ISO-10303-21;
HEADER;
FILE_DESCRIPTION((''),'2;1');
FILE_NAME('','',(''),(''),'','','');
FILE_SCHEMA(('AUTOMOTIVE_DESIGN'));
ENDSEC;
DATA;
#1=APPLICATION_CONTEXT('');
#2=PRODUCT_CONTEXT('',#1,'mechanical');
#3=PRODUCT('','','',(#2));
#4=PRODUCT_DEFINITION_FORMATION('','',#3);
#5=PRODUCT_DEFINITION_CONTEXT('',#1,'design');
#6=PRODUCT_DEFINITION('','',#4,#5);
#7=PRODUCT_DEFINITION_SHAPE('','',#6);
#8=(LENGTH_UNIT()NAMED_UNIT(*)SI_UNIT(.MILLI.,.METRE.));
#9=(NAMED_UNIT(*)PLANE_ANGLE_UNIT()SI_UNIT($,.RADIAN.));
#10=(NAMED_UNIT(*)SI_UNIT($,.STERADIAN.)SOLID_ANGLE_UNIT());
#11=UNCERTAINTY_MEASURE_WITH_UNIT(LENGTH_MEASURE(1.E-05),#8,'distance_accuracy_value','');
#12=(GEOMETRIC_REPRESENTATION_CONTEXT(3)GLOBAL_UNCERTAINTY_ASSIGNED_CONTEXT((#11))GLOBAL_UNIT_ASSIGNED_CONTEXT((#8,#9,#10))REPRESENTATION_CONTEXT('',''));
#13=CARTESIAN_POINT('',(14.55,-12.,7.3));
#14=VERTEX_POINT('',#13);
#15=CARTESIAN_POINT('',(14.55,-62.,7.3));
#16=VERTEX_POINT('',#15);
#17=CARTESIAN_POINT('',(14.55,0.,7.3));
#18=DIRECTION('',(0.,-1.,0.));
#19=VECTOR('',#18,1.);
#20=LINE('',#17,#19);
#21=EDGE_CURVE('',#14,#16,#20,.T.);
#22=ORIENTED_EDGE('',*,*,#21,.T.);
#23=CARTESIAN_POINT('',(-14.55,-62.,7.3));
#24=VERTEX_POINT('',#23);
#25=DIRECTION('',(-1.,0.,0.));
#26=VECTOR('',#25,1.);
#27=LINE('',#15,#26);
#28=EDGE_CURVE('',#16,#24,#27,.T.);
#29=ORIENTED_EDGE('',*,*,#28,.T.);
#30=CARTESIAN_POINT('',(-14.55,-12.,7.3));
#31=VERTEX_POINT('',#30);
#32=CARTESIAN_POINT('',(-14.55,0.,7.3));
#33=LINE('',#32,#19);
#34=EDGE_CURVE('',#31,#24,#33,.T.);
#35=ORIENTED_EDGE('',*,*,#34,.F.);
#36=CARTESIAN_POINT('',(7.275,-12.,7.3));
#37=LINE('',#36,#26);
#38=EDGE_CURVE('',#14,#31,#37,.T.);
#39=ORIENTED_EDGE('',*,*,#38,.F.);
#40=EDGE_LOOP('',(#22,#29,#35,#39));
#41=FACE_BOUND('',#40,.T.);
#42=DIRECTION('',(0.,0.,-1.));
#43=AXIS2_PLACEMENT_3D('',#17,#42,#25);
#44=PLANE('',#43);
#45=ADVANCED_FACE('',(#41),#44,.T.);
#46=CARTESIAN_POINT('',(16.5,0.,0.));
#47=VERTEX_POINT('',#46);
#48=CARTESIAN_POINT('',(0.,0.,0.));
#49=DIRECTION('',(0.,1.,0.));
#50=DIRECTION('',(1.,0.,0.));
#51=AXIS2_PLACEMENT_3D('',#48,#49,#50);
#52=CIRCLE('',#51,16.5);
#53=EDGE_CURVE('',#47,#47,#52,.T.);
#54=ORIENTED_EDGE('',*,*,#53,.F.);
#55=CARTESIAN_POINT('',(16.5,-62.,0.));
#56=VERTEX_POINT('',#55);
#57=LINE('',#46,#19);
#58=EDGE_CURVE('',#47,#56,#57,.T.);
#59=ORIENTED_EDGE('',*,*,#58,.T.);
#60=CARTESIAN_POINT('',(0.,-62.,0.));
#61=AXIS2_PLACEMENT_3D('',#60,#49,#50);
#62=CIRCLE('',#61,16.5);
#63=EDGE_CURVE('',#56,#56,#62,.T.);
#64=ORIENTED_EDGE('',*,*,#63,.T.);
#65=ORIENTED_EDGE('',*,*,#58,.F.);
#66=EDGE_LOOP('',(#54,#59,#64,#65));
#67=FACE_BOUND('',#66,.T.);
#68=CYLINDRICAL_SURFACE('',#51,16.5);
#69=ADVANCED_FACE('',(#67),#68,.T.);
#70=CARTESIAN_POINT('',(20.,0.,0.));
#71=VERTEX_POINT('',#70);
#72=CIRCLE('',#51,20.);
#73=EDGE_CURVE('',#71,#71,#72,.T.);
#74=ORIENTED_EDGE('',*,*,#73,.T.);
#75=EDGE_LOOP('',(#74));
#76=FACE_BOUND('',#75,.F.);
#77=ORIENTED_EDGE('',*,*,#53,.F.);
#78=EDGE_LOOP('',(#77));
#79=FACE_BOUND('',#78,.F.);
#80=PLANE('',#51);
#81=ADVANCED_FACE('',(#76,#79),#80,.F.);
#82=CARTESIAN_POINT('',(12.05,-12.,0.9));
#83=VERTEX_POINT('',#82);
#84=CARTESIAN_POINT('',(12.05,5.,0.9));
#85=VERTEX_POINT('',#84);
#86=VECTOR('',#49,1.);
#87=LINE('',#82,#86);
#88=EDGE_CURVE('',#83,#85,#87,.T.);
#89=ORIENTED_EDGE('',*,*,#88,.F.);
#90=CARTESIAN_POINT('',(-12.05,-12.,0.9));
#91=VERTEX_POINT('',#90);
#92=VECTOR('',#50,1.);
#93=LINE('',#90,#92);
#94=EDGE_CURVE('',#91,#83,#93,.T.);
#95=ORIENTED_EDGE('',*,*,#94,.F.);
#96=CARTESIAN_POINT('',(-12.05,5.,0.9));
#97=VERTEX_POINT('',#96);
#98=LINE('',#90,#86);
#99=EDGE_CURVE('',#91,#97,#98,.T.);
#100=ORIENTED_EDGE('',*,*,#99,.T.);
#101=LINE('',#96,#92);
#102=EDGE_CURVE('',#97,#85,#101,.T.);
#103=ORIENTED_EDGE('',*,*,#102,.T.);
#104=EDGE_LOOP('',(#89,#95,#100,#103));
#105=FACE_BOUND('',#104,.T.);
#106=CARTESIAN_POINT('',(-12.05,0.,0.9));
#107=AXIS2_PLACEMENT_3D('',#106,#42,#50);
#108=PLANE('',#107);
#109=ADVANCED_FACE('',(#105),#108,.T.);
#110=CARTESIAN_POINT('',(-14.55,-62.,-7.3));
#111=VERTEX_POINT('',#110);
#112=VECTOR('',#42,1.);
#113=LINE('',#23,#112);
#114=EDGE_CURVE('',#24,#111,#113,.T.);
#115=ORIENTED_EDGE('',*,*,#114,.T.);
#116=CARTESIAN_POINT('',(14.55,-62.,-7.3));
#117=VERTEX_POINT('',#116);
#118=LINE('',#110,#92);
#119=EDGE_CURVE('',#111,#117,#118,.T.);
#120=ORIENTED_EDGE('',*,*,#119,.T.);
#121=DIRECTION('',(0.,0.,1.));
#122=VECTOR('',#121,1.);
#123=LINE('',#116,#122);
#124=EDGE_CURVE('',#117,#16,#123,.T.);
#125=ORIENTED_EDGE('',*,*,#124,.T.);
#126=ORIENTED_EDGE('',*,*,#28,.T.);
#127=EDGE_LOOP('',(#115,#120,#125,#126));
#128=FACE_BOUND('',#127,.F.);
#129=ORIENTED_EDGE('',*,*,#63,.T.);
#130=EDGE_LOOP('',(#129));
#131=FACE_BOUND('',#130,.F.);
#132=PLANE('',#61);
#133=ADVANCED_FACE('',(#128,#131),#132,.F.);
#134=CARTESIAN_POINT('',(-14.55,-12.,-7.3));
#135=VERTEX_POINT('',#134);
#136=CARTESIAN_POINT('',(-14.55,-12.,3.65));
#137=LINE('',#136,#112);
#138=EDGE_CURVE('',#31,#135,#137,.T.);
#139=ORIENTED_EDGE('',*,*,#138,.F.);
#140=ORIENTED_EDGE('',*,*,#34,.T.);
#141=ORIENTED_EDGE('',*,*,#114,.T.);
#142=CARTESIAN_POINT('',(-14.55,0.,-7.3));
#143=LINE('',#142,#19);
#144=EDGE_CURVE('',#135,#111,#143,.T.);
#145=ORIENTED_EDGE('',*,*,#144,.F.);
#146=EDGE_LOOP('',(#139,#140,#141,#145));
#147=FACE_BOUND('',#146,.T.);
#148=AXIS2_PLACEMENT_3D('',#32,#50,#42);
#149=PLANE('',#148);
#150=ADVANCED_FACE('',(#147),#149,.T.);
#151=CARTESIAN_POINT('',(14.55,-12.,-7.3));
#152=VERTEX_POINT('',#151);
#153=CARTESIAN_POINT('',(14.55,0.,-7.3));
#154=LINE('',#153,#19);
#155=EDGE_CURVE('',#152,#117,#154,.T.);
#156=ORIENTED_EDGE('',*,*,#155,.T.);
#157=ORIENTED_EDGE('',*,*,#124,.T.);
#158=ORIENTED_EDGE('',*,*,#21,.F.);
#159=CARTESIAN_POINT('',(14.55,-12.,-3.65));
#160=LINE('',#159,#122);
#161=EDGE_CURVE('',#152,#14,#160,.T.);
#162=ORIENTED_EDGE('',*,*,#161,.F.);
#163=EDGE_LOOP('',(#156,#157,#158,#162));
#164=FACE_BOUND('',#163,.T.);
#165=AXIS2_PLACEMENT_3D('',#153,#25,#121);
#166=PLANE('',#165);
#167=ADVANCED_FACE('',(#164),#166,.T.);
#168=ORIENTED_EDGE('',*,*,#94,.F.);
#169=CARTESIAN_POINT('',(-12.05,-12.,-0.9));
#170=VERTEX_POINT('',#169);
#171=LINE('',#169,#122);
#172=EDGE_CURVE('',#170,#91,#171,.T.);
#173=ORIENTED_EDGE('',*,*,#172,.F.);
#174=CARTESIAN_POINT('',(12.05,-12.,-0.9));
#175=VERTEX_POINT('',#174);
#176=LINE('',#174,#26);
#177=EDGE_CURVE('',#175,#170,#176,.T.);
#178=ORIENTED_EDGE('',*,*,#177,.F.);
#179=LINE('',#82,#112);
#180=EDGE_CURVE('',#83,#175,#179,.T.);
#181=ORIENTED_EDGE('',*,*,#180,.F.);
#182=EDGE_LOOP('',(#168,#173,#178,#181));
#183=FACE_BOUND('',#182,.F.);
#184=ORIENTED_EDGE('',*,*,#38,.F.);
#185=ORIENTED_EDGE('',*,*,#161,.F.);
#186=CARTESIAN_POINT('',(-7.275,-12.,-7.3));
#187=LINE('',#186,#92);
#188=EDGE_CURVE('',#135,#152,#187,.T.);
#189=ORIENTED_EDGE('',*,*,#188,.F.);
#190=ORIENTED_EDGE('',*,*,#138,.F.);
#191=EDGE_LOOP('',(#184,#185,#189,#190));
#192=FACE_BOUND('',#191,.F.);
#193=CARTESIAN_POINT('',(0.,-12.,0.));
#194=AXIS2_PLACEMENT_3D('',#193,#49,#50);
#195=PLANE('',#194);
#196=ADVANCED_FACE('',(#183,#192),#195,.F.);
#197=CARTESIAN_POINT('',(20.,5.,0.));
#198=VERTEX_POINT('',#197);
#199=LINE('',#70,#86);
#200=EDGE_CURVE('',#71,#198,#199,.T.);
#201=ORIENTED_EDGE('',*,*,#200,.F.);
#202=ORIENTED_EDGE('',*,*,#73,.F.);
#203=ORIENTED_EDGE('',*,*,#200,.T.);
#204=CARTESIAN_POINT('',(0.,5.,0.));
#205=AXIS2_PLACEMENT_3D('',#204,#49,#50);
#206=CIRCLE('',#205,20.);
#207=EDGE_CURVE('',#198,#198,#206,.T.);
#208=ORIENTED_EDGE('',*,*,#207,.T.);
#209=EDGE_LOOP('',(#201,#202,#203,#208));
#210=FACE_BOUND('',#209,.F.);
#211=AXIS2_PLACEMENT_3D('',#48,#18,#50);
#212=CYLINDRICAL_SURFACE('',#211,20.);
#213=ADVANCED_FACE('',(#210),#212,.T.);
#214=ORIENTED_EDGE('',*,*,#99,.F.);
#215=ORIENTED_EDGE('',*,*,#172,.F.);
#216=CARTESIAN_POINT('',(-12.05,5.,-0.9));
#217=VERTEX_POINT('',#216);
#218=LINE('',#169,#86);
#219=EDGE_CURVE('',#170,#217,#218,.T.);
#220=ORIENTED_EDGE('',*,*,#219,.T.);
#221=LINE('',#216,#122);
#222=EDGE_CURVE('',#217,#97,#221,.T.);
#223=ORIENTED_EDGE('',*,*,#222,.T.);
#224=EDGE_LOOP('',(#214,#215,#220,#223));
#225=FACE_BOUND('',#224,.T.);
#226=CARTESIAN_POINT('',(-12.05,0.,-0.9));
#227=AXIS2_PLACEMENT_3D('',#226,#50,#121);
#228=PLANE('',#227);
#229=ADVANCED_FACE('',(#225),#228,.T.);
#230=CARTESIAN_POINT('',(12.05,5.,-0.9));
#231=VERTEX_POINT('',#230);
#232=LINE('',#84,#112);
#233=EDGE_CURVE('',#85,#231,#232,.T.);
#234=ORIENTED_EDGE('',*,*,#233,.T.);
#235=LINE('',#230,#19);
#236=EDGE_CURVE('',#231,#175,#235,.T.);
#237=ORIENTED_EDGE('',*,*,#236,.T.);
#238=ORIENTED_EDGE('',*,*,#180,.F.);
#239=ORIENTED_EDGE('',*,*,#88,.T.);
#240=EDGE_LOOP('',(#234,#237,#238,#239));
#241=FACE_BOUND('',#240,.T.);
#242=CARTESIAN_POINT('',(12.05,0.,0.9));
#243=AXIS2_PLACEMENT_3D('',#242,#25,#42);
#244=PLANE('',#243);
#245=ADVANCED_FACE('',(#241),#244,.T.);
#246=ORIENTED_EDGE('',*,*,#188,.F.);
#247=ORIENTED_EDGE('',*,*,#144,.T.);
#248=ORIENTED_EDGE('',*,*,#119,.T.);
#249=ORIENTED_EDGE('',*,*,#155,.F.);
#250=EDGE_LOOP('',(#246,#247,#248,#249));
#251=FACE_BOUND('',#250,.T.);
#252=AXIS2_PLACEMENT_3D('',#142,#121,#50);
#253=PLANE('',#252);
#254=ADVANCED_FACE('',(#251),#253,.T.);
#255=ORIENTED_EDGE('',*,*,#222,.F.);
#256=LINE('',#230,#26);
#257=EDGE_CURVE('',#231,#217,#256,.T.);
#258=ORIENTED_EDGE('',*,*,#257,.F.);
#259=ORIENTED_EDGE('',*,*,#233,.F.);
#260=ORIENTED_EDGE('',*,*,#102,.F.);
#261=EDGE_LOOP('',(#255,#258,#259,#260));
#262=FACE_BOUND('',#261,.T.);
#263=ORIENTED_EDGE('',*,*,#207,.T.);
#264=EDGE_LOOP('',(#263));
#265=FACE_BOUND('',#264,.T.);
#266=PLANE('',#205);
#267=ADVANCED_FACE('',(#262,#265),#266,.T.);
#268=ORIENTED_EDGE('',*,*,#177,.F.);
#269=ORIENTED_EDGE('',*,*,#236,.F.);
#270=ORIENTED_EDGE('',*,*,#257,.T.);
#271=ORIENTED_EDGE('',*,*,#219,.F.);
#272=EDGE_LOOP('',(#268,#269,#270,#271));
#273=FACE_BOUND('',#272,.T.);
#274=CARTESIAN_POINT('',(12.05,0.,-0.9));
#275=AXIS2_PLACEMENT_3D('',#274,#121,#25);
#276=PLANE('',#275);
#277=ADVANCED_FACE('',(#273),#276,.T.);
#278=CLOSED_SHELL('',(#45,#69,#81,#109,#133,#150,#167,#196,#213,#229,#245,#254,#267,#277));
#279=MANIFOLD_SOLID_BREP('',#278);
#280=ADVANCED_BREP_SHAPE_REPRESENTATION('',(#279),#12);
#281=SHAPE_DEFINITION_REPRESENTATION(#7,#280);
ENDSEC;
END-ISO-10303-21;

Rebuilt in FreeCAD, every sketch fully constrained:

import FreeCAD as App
import Part
import Sketcher
Q = App.Units.Quantity

doc = App.newDocument("Part")
params = doc.addObject("Spreadsheet::Sheet", "Params")
for row, (alias, value) in enumerate([
    ("sketch1_diameter", "40 mm"),
    ("sketch1_width", "24.1 mm"),
    ("sketch1_height", "1.8 mm"),
    ("pad1_length", "5 mm"),
    ("sketch2_diameter", "33 mm"),
    ("sketch2_width", "24.1 mm"),
    ("sketch2_height", "1.8 mm"),
    ("pad2_length", "12 mm"),
    ("sketch3_diameter", "33 mm"),
    ("sketch3_width", "29.1 mm"),
    ("sketch3_height", "14.6 mm"),
    ("pad3_length", "62 mm"),
], start=1):
    params.set(f"A{row}", alias)
    params.set(f"B{row}", "=" + value)
    params.setAlias(f"B{row}", alias)

body = doc.addObject("PartDesign::Body", "Body")

# Sketch on XZ plane
sketch1 = doc.addObject("Sketcher::SketchObject", "Sketch")
body.addObject(sketch1)
sketch1.AttachmentSupport = (doc.XZ_Plane, [""])
sketch1.MapMode = "FlatFace"
sketch1.addGeometry([
    Part.Circle(App.Vector(0, 0, 0), App.Vector(0, 0, 1), 20),  # 0
    Part.LineSegment(App.Vector(12.1, -0.9, 0), App.Vector(12.1, 0.9, 0)),  # 1
    Part.LineSegment(App.Vector(12.1, 0.9, 0), App.Vector(-12.1, 0.9, 0)),  # 2
    Part.LineSegment(App.Vector(-12.1, 0.9, 0), App.Vector(-12.1, -0.9, 0)),  # 3
    Part.LineSegment(App.Vector(-12.1, -0.9, 0), App.Vector(12.1, -0.9, 0)),  # 4
], False)
sketch1.addConstraint([
    Sketcher.Constraint("Coincident", 1, 2, 2, 1),
    Sketcher.Constraint("Coincident", 2, 2, 3, 1),
    Sketcher.Constraint("Coincident", 3, 2, 4, 1),
    Sketcher.Constraint("Coincident", 4, 2, 1, 1),
    Sketcher.Constraint("Vertical", 1),
    Sketcher.Constraint("Horizontal", 2),
    Sketcher.Constraint("Vertical", 3),
    Sketcher.Constraint("Horizontal", 4),
    Sketcher.Constraint("Coincident", 0, 3, -1, 1),
    Sketcher.Constraint("Symmetric", 1, 2, 3, 2, -1, 1),
    Sketcher.Constraint("Diameter", 0, Q("40 mm")),
    Sketcher.Constraint("DistanceX", 2, 2, 2, 1, Q("24.1 mm")),
    Sketcher.Constraint("DistanceY", 1, 1, 1, 2, Q("1.8 mm")),
])
sketch1.setExpression("Constraints[10]", "Params.sketch1_diameter")
sketch1.setExpression("Constraints[11]", "Params.sketch1_width")
sketch1.setExpression("Constraints[12]", "Params.sketch1_height")
pad1 = doc.addObject("PartDesign::Pad", "Pad")
body.addObject(pad1)
pad1.Profile = sketch1
pad1.setExpression("Length", "Params.pad1_length")
pad1.Reversed = True

# Sketch on XZ plane
sketch2 = doc.addObject("Sketcher::SketchObject", "Sketch001")
body.addObject(sketch2)
sketch2.AttachmentSupport = (doc.XZ_Plane, [""])
sketch2.MapMode = "FlatFace"
sketch2.addGeometry([
    Part.Circle(App.Vector(0, 0, 0), App.Vector(0, 0, 1), 16.5),  # 0
    Part.LineSegment(App.Vector(-12.1, -0.9, 0), App.Vector(12.1, -0.9, 0)),  # 1
    Part.LineSegment(App.Vector(12.1, -0.9, 0), App.Vector(12.1, 0.9, 0)),  # 2
    Part.LineSegment(App.Vector(12.1, 0.9, 0), App.Vector(-12.1, 0.9, 0)),  # 3
    Part.LineSegment(App.Vector(-12.1, 0.9, 0), App.Vector(-12.1, -0.9, 0)),  # 4
], False)
sketch2.addConstraint([
    Sketcher.Constraint("Coincident", 1, 2, 2, 1),
    Sketcher.Constraint("Coincident", 2, 2, 3, 1),
    Sketcher.Constraint("Coincident", 3, 2, 4, 1),
    Sketcher.Constraint("Coincident", 4, 2, 1, 1),
    Sketcher.Constraint("Horizontal", 1),
    Sketcher.Constraint("Vertical", 2),
    Sketcher.Constraint("Horizontal", 3),
    Sketcher.Constraint("Vertical", 4),
    Sketcher.Constraint("Coincident", 0, 3, -1, 1),
    Sketcher.Constraint("Symmetric", 1, 2, 3, 2, -1, 1),
    Sketcher.Constraint("Diameter", 0, Q("33 mm")),
    Sketcher.Constraint("DistanceX", 1, 1, 1, 2, Q("24.1 mm")),
    Sketcher.Constraint("DistanceY", 2, 1, 2, 2, Q("1.8 mm")),
])
sketch2.setExpression("Constraints[10]", "Params.sketch2_diameter")
sketch2.setExpression("Constraints[11]", "Params.sketch2_width")
sketch2.setExpression("Constraints[12]", "Params.sketch2_height")
pad2 = doc.addObject("PartDesign::Pad", "Pad001")
body.addObject(pad2)
pad2.Profile = sketch2
pad2.setExpression("Length", "Params.pad2_length")

# Sketch on XZ plane
sketch3 = doc.addObject("Sketcher::SketchObject", "Sketch002")
body.addObject(sketch3)
sketch3.AttachmentSupport = (doc.XZ_Plane, [""])
sketch3.MapMode = "FlatFace"
sketch3.addGeometry([
    Part.Circle(App.Vector(0, 0, 0), App.Vector(0, 0, 1), 16),  # 0
    Part.LineSegment(App.Vector(15, -7, 0), App.Vector(15, 7, 0)),  # 1
    Part.LineSegment(App.Vector(15, 7, 0), App.Vector(-15, 7, 0)),  # 2
    Part.LineSegment(App.Vector(-15, 7, 0), App.Vector(-15, -7, 0)),  # 3
    Part.LineSegment(App.Vector(-15, -7, 0), App.Vector(15, -7, 0)),  # 4
], False)
sketch3.addConstraint([
    Sketcher.Constraint("Coincident", 1, 2, 2, 1),
    Sketcher.Constraint("Coincident", 2, 2, 3, 1),
    Sketcher.Constraint("Coincident", 3, 2, 4, 1),
    Sketcher.Constraint("Coincident", 4, 2, 1, 1),
    Sketcher.Constraint("Vertical", 1),
    Sketcher.Constraint("Horizontal", 2),
    Sketcher.Constraint("Vertical", 3),
    Sketcher.Constraint("Horizontal", 4),
    Sketcher.Constraint("Coincident", 0, 3, -1, 1),
    Sketcher.Constraint("Symmetric", 1, 2, 3, 2, -1, 1),
    Sketcher.Constraint("Diameter", 0, Q("33 mm")),
    Sketcher.Constraint("DistanceX", 2, 2, 2, 1, Q("29.1 mm")),
    Sketcher.Constraint("DistanceY", 1, 1, 1, 2, Q("14.6 mm")),
])
sketch3.setExpression("Constraints[10]", "Params.sketch3_diameter")
sketch3.setExpression("Constraints[11]", "Params.sketch3_width")
sketch3.setExpression("Constraints[12]", "Params.sketch3_height")
pad3 = doc.addObject("PartDesign::Pad", "Pad002")
body.addObject(pad3)
pad3.Profile = sketch3
pad3.setExpression("Length", "Params.pad3_length")

doc.recompute()
